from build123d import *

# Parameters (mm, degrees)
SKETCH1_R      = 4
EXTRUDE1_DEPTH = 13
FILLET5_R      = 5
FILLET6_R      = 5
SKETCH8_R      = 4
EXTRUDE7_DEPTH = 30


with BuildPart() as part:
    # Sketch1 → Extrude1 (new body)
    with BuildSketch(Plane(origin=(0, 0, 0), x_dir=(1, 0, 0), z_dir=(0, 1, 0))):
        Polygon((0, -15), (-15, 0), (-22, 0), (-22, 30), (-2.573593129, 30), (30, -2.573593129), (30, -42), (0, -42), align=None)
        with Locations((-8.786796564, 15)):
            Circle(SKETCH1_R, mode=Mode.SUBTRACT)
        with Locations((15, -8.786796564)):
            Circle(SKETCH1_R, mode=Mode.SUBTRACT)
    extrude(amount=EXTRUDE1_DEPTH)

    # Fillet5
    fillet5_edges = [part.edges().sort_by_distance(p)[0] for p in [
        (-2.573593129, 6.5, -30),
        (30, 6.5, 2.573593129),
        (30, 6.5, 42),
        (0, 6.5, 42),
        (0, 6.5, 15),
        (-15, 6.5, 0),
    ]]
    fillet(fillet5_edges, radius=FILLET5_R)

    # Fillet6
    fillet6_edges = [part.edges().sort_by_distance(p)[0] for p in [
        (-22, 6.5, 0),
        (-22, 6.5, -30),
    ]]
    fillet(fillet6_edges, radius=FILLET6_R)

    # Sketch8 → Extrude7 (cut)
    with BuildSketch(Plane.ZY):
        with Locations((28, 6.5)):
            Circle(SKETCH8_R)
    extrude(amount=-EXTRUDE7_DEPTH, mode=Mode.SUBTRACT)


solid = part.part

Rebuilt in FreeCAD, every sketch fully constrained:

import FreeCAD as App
import Part
import Sketcher
from FreeCAD import Vector
Q = App.Units.Quantity


def edges_at(feature, points):
    """Names of the edges that pass closest to the given points."""
    edges = feature.Shape.Edges
    near = lambda p: min(range(len(edges)), key=lambda i: edges[i].distToShape(Part.Vertex(*p))[0])
    return sorted({f"Edge{near(p) + 1}" for p in points})


def add_polygon(sketch, points):
    """Adds a closed chain of lines whose ends are joined by coincident constraints."""
    first, n = sketch.GeometryCount, len(points)
    for a, b in zip(points, points[1:] + points[:1]):
        sketch.addGeometry(Part.LineSegment(App.Vector(*a, 0), App.Vector(*b, 0)), False)
    for i in range(n):
        sketch.addConstraint(Sketcher.Constraint("Coincident", first + i, 2, first + (i + 1) % n, 1))

doc = App.newDocument("Part")
body = doc.addObject("PartDesign::Body", "Body")

sketch1 = doc.addObject("Sketcher::SketchObject", "Sketch")
body.addObject(sketch1)
sketch1.AttachmentSupport = (doc.XZ_Plane, [""])
sketch1.MapMode = "FlatFace"
add_polygon(sketch1, [(-15, 0), (0, 15), (0, 42), (30, 42), (30, 2.573593), (-2.573593, -30), (-22, -30), (-22, 0)])
sketch1.addGeometry(Part.Circle(Vector(15, 8.786797, 0), Vector(0, 0, 1), 4), False)
sketch1.addGeometry(Part.Circle(Vector(-8.786797, -15, 0), Vector(0, 0, 1), 4), False)
sketch1.addConstraint(Sketcher.Constraint("Vertical", 1))
sketch1.addConstraint(Sketcher.Constraint("Horizontal", 2))
sketch1.addConstraint(Sketcher.Constraint("Vertical", 3))
sketch1.addConstraint(Sketcher.Constraint("Horizontal", 5))
sketch1.addConstraint(Sketcher.Constraint("Vertical", 6))
sketch1.addConstraint(Sketcher.Constraint("Horizontal", 7))
sketch1.addConstraint(Sketcher.Constraint("Equal", 8, 9))
sketch1.addConstraint(Sketcher.Constraint("PointOnObject", 0, 2, -2))
sketch1.addConstraint(Sketcher.Constraint("PointOnObject", 6, 2, -1))
sketch1.addConstraint(Sketcher.Constraint("Parallel", 0, 4))
sketch1.addConstraint(Sketcher.Constraint("Equal", 2, 6))
sketch1.addConstraint(Sketcher.Constraint("Diameter", 8, 8.0))
sketch1.addConstraint(Sketcher.Constraint("DistanceX", 2, 1, 2, 2, 30.0))
sketch1.addConstraint(Sketcher.Constraint("DistanceX", 7, 1, 7, 2, 7.0))
sketch1.addConstraint(Sketcher.Constraint("DistanceY", 1, 1, 1, 2, 27.0))
sketch1.addConstraint(Sketcher.Constraint("Angle", 0, Q("45 deg")))
sketch1.addConstraint(Sketcher.Constraint("DistanceX", -1, 1, 8, 3, 15.0))
sketch1.addConstraint(Sketcher.Constraint("DistanceY", 9, 3, -1, 1, 15.0))
sketch1.addConstraint(Sketcher.Constraint("DistanceY", -1, 1, 0, 2, 15.0))
sketch1.addConstraint(Sketcher.Constraint("DistanceX", 5, 2, 5, 1, 19.426407))
sketch1.addConstraint(Sketcher.Constraint("DistanceY", -1, 1, 8, 3, 8.786797))
sketch1.addConstraint(Sketcher.Constraint("DistanceX", 9, 3, -1, 1, 8.786797))
pad1 = doc.addObject("PartDesign::Pad", "Pad")
body.addObject(pad1)
pad1.Profile = sketch1
pad1.Length = 13
pad1.Reversed = True
doc.recompute()

fillet = doc.addObject("PartDesign::Fillet", "Fillet")
body.addObject(fillet)
fillet.Base = (pad1, edges_at(pad1, [
    (-2.574, 6.5, -30),
    (30, 6.5, 2.574),
    (30, 6.5, 42),
    (0, 6.5, 42),
    (0, 6.5, 15),
    (-15, 6.5, 0),
]))
fillet.Radius = 5
doc.recompute()

fillet2 = doc.addObject("PartDesign::Fillet", "Fillet001")
body.addObject(fillet2)
fillet2.Base = (fillet, edges_at(fillet, [(-22, 6.5, 0), (-22, 6.5, -30)]))
fillet2.Radius = 5

sketch2 = doc.addObject("Sketcher::SketchObject", "Sketch001")
body.addObject(sketch2)
sketch2.AttachmentSupport = (doc.YZ_Plane, [""])
sketch2.MapMode = "FlatFace"
sketch2.addGeometry(Part.Circle(Vector(6.5, 28, 0), Vector(0, 0, 1), 4), False)
sketch2.addConstraint(Sketcher.Constraint("Diameter", 0, 8.0))
sketch2.addConstraint(Sketcher.Constraint("DistanceY", -1, 1, 0, 3, 28.0))
sketch2.addConstraint(Sketcher.Constraint("DistanceX", -1, 1, 0, 3, 6.5))
pocket1 = doc.addObject("PartDesign::Pocket", "Pocket")
body.addObject(pocket1)
pocket1.Profile = sketch2
pocket1.Length = 30
pocket1.Reversed = True

doc.recompute()
